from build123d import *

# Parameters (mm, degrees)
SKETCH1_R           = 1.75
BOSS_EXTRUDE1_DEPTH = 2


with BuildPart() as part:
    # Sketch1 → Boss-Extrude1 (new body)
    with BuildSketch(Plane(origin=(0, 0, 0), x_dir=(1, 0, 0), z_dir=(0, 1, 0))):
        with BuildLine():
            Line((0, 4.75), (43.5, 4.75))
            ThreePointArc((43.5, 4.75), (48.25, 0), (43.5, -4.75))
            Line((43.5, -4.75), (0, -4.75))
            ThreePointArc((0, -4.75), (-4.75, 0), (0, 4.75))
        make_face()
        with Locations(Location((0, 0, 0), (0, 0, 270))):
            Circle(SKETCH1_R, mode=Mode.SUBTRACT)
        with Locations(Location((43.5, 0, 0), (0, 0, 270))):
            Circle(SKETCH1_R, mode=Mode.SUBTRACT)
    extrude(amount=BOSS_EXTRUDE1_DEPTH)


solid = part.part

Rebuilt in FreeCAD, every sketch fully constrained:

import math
import FreeCAD as App
import Part
import Sketcher

V = App.Vector

doc = App.newDocument("Part")
body = doc.addObject("PartDesign::Body", "Body")

# Sketch on XZ plane
sketch1 = body.newObject("Sketcher::SketchObject", "Sketch")
sketch1.AttachmentSupport = (doc.getObject("XZ_Plane"), [""])
sketch1.MapMode = "FlatFace"
sketch1.addGeometry(Part.LineSegment(V(43.5, -4.8, 0), V(0, -4.8, 0)), False)
sketch1.addGeometry(Part.ArcOfCircle(Part.Circle(V(0, 0, 0), V(0, 0, 1), 4.8), math.radians(90), math.radians(270)), False)
sketch1.addGeometry(Part.LineSegment(V(0, 4.8, 0), V(43.5, 4.8, 0)), False)
sketch1.addGeometry(Part.ArcOfCircle(Part.Circle(V(43.5, 0, 0), V(0, 0, 1), 4.8), math.radians(-90), math.radians(90)), False)
sketch1.addGeometry(Part.Circle(V(43.5, 0, 0), V(0, 0, 1), 1.8), False)
sketch1.addGeometry(Part.Circle(V(0, 0, 0), V(0, 0, 1), 1.8), False)
sketch1.addConstraint(Sketcher.Constraint("Tangent", 0, 2, 1, 2))
sketch1.addConstraint(Sketcher.Constraint("Tangent", 1, 1, 2, 1))
sketch1.addConstraint(Sketcher.Constraint("Tangent", 2, 2, 3, 2))
sketch1.addConstraint(Sketcher.Constraint("Tangent", 3, 1, 0, 1))
sketch1.addConstraint(Sketcher.Constraint("Horizontal", 0))
sketch1.addConstraint(Sketcher.Constraint("Horizontal", 2))
sketch1.addConstraint(Sketcher.Constraint("Coincident", 1, 3, -1, 1))
sketch1.addConstraint(Sketcher.Constraint("Coincident", 5, 3, -1, 1))
sketch1.addConstraint(Sketcher.Constraint("Coincident", 4, 3, 3, 3))
sketch1.addConstraint(Sketcher.Constraint("Equal", 4, 5))
sketch1.addConstraint(Sketcher.Constraint("Diameter", 4, 3.5))
sketch1.addConstraint(Sketcher.Constraint("Radius", 1, 4.75))
sketch1.addConstraint(Sketcher.Constraint("DistanceX", 0, 2, 0, 1, 43.5))
pad1 = body.newObject("PartDesign::Pad", "Pad")
pad1.Profile = sketch1
pad1.Length = 2
pad1.Reversed = True

doc.recompute()
